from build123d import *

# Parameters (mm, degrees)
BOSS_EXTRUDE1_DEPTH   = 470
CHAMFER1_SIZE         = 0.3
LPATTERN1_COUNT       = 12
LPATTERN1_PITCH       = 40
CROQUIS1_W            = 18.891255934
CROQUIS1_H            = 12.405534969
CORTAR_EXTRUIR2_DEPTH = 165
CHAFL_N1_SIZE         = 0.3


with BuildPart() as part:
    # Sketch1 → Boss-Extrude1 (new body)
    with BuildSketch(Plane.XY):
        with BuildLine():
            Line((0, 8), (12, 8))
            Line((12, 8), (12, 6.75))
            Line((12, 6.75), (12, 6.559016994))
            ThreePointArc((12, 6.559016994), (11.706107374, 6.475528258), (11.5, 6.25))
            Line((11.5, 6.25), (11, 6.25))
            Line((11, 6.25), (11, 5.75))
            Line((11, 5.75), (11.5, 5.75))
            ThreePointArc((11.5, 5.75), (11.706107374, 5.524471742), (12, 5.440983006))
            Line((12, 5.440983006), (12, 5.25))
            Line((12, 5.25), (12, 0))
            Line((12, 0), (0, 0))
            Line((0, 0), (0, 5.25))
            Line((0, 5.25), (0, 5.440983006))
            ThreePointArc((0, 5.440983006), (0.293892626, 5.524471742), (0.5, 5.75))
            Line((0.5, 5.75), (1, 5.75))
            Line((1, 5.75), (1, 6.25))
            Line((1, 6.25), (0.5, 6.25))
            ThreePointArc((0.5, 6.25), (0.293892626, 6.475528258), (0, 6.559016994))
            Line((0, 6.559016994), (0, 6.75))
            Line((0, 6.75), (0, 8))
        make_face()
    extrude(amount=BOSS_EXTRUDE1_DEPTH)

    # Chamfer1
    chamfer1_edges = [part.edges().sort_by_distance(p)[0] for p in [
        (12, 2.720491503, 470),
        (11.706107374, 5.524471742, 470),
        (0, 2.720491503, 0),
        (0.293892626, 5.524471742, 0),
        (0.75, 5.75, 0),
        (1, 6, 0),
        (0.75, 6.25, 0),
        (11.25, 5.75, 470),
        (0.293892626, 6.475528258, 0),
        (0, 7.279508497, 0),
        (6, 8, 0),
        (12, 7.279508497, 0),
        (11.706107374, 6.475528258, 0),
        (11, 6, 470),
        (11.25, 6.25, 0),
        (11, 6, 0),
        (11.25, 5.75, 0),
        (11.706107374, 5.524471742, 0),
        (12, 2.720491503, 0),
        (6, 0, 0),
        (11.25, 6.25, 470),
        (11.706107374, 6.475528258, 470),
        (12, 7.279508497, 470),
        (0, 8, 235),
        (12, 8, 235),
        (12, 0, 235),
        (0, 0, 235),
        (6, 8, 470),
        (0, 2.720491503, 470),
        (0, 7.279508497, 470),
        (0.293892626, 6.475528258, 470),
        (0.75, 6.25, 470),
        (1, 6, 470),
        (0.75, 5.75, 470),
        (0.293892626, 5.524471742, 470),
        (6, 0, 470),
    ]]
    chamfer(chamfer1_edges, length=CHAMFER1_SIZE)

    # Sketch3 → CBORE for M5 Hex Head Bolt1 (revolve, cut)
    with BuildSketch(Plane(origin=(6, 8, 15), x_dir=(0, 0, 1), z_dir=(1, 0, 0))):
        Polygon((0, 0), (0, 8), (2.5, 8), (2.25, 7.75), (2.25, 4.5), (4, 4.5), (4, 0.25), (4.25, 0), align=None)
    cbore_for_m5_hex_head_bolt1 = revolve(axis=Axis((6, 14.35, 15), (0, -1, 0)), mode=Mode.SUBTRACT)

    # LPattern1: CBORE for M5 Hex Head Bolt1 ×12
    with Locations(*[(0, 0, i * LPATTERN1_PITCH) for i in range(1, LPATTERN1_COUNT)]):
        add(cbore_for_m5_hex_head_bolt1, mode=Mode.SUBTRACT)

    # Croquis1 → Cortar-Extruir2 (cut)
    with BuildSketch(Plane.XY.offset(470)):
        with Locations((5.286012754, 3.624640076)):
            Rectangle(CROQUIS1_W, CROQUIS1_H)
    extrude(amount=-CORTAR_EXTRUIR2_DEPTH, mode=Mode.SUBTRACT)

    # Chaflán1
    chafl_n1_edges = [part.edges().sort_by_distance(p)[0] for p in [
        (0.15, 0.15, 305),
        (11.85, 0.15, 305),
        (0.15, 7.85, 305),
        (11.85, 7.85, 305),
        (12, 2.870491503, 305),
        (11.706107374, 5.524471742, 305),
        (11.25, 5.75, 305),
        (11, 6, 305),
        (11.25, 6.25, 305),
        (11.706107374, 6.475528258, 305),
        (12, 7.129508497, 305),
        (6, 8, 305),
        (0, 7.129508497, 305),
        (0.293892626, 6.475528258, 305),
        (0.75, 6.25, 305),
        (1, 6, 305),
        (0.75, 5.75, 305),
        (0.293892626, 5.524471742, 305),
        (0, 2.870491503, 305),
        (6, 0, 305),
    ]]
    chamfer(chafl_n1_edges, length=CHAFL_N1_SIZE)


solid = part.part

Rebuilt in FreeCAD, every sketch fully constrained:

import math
import FreeCAD as App
import Part
import Sketcher
Q = App.Units.Quantity


def edges_at(feature, points):
    """Names of the edges that pass closest to the given points."""
    edges = feature.Shape.Edges
    near = lambda p: min(range(len(edges)), key=lambda i: edges[i].distToShape(Part.Vertex(*p))[0])
    return sorted({f"Edge{near(p) + 1}" for p in points})


def add_polygon(sketch, points):
    """Adds a closed chain of lines whose ends are joined by coincident constraints."""
    first, n = sketch.GeometryCount, len(points)
    for a, b in zip(points, points[1:] + points[:1]):
        sketch.addGeometry(Part.LineSegment(App.Vector(*a, 0), App.Vector(*b, 0)), False)
    for i in range(n):
        sketch.addConstraint(Sketcher.Constraint("Coincident", first + i, 2, first + (i + 1) % n, 1))

doc = App.newDocument("Part")
body = doc.addObject("PartDesign::Body", "Body")

# Sketch on XY plane
sketch1 = body.newObject("Sketcher::SketchObject", "Sketch")
sketch1.AttachmentSupport = (doc.getObject("XY_Plane"), [""])
sketch1.MapMode = "FlatFace"
sketch1.addGeometry(Part.LineSegment(App.Vector(12, 8, 0), App.Vector(0, 8, 0)), False)
sketch1.addGeometry(Part.LineSegment(App.Vector(0, 8, 0), App.Vector(0, 6.559017, 0)), False)
sketch1.addGeometry(Part.ArcOfCircle(Part.Circle(App.Vector(0, 6, 0), App.Vector(0, 0, 1), 0.559017), math.radians(26.565051), math.radians(90)), False)
sketch1.addGeometry(Part.LineSegment(App.Vector(0.5, 6.25, 0), App.Vector(1, 6.25, 0)), False)
sketch1.addGeometry(Part.LineSegment(App.Vector(1, 6.25, 0), App.Vector(1, 5.75, 0)), False)
sketch1.addGeometry(Part.LineSegment(App.Vector(1, 5.75, 0), App.Vector(0.5, 5.75, 0)), False)
sketch1.addGeometry(Part.ArcOfCircle(Part.Circle(App.Vector(0, 6, 0), App.Vector(0, 0, 1), 0.559017), math.radians(-90), math.radians(-26.565051)), False)
sketch1.addGeometry(Part.LineSegment(App.Vector(0, 5.440983, 0), App.Vector(0, 0, 0)), False)
sketch1.addGeometry(Part.LineSegment(App.Vector(0, 0, 0), App.Vector(12, 0, 0)), False)
sketch1.addGeometry(Part.LineSegment(App.Vector(12, 0, 0), App.Vector(12, 5.440983, 0)), False)
sketch1.addGeometry(Part.ArcOfCircle(Part.Circle(App.Vector(12, 6, 0), App.Vector(0, 0, 1), 0.559017), math.radians(-153.434949), math.radians(-90)), False)
sketch1.addGeometry(Part.LineSegment(App.Vector(11.5, 5.75, 0), App.Vector(11, 5.75, 0)), False)
sketch1.addGeometry(Part.LineSegment(App.Vector(11, 5.75, 0), App.Vector(11, 6.25, 0)), False)
sketch1.addGeometry(Part.LineSegment(App.Vector(11, 6.25, 0), App.Vector(11.5, 6.25, 0)), False)
sketch1.addGeometry(Part.ArcOfCircle(Part.Circle(App.Vector(12, 6, 0), App.Vector(0, 0, 1), 0.559017), math.radians(90), math.radians(153.434949)), False)
sketch1.addGeometry(Part.LineSegment(App.Vector(12, 6.559017, 0), App.Vector(12, 8, 0)), False)
sketch1.addConstraint(Sketcher.Constraint("Coincident", 0, 2, 1, 1))
sketch1.addConstraint(Sketcher.Constraint("Coincident", 1, 2, 2, 2))
sketch1.addConstraint(Sketcher.Constraint("Coincident", 2, 1, 3, 1))
sketch1.addConstraint(Sketcher.Constraint("Coincident", 3, 2, 4, 1))
sketch1.addConstraint(Sketcher.Constraint("Coincident", 4, 2, 5, 1))
sketch1.addConstraint(Sketcher.Constraint("Coincident", 5, 2, 6, 2))
sketch1.addConstraint(Sketcher.Constraint("Coincident", 6, 1, 7, 1))
sketch1.addConstraint(Sketcher.Constraint("Coincident", 7, 2, 8, 1))
sketch1.addConstraint(Sketcher.Constraint("Coincident", 8, 2, 9, 1))
sketch1.addConstraint(Sketcher.Constraint("Coincident", 9, 2, 10, 2))
sketch1.addConstraint(Sketcher.Constraint("Coincident", 10, 1, 11, 1))
sketch1.addConstraint(Sketcher.Constraint("Coincident", 11, 2, 12, 1))
sketch1.addConstraint(Sketcher.Constraint("Coincident", 12, 2, 13, 1))
sketch1.addConstraint(Sketcher.Constraint("Coincident", 13, 2, 14, 2))
sketch1.addConstraint(Sketcher.Constraint("Coincident", 14, 1, 15, 1))
sketch1.addConstraint(Sketcher.Constraint("Coincident", 15, 2, 0, 1))
sketch1.addConstraint(Sketcher.Constraint("Horizontal", 0))
sketch1.addConstraint(Sketcher.Constraint("Vertical", 1))
sketch1.addConstraint(Sketcher.Constraint("Horizontal", 3))
sketch1.addConstraint(Sketcher.Constraint("Vertical", 4))
sketch1.addConstraint(Sketcher.Constraint("Horizontal", 5))
sketch1.addConstraint(Sketcher.Constraint("Vertical", 7))
sketch1.addConstraint(Sketcher.Constraint("Horizontal", 8))
sketch1.addConstraint(Sketcher.Constraint("Vertical", 9))
sketch1.addConstraint(Sketcher.Constraint("Horizontal", 11))
sketch1.addConstraint(Sketcher.Constraint("Vertical", 12))
sketch1.addConstraint(Sketcher.Constraint("Horizontal", 13))
sketch1.addConstraint(Sketcher.Constraint("Vertical", 15))
sketch1.addConstraint(Sketcher.Constraint("Coincident", 7, 2, -1, 1))
sketch1.addConstraint(Sketcher.Constraint("Coincident", 6, 3, 2, 3))
sketch1.addConstraint(Sketcher.Constraint("Coincident", 14, 3, 10, 3))
sketch1.addConstraint(Sketcher.Constraint("Equal", 2, 6))
sketch1.addConstraint(Sketcher.Constraint("Equal", 6, 10))
sketch1.addConstraint(Sketcher.Constraint("Equal", 10, 14))
sketch1.addConstraint(Sketcher.Constraint("PointOnObject", 2, 3, -2))
sketch1.addConstraint(Sketcher.Constraint("PointOnObject", 0, 2, -2))
sketch1.addConstraint(Sketcher.Constraint("Horizontal", 6, 3, 10, 3))
sketch1.addConstraint(Sketcher.Constraint("Horizontal", 5, 2, 10, 1))
sketch1.addConstraint(Sketcher.Constraint("Horizontal", 3, 2, 12, 2))
sketch1.addConstraint(Sketcher.Constraint("Vertical", 2, 1, 5, 2))
sketch1.addConstraint(Sketcher.Constraint("Vertical", 14, 3, 8, 2))
sketch1.addConstraint(Sketcher.Constraint("Vertical", 9, 2, 14, 1))
sketch1.addConstraint(Sketcher.Constraint("Equal", 5, 11))
sketch1.addConstraint(Sketcher.Constraint("Equal", 13, 4))
sketch1.addConstraint(Sketcher.Constraint("DistanceX", 0, 2, 0, 1, Q("12 mm")))
sketch1.addConstraint(Sketcher.Constraint("DistanceX", 3, 1, 3, 2, Q("0.5 mm")))
sketch1.addConstraint(Sketcher.Constraint("DistanceY", -1, 1, 2, 3, Q("6 mm")))
sketch1.addConstraint(Sketcher.Constraint("DistanceY", -1, 1, 0, 2, Q("8 mm")))
sketch1.addConstraint(Sketcher.Constraint("DistanceX", -1, 1, 3, 2, Q("1 mm")))
pad1 = body.newObject("PartDesign::Pad", "Pad")
pad1.Profile = sketch1
pad1.Length = 470
doc.recompute()

chamfer = body.newObject("PartDesign::Chamfer", "Chamfer")
chamfer.Base = (pad1, edges_at(pad1, [
    (12, 2.72, 470),
    (11.706, 5.524, 470),
    (0, 2.72, 0),
    (0.294, 5.524, 0),
    (0.75, 5.75, 0),
    (1, 6, 0),
    (0.75, 6.25, 0),
    (11.25, 5.75, 470),
    (0.294, 6.476, 0),
    (0, 7.28, 0),
    (6, 8, 0),
    (12, 7.28, 0),
    (11.706, 6.476, 0),
    (11, 6, 470),
    (11.25, 6.25, 0),
    (11, 6, 0),
    (11.25, 5.75, 0),
    (11.706, 5.524, 0),
    (12, 2.72, 0),
    (6, 0, 0),
    (11.25, 6.25, 470),
    (11.706, 6.476, 470),
    (12, 7.28, 470),
    (0, 8, 235),
    (12, 8, 235),
    (12, 0, 235),
    (0, 0, 235),
    (6, 8, 470),
    (0, 2.72, 470),
    (0, 7.28, 470),
    (0.294, 6.476, 470),
    (0.75, 6.25, 470),
    (1, 6, 470),
    (0.75, 5.75, 470),
    (0.294, 5.524, 470),
    (6, 0, 470),
]))
chamfer.Size = 0.3

# Sketch on YZ plane
sketch2 = body.newObject("Sketcher::SketchObject", "Sketch001")
sketch2.AttachmentSupport = (doc.getObject("YZ_Plane"), [""])
sketch2.MapMode = "FlatFace"
sketch2.AttachmentOffset = App.Placement(App.Vector(0, 0, 6), App.Rotation())
add_polygon(sketch2, [(0, 15), (8, 15), (8, 19.25), (7.75, 19), (3.5, 19), (3.5, 17.25), (0.25, 17.25), (0, 17.5)])  # lines 0-7
sketch2.addGeometry(Part.LineSegment(App.Vector(8, 15, 0), App.Vector(0, 15, 0)), True)  # axis
sketch2.addConstraint(Sketcher.Constraint("Horizontal", 0))
sketch2.addConstraint(Sketcher.Constraint("Vertical", 1))
sketch2.addConstraint(Sketcher.Constraint("Horizontal", 3))
sketch2.addConstraint(Sketcher.Constraint("Vertical", 4))
sketch2.addConstraint(Sketcher.Constraint("Horizontal", 5))
sketch2.addConstraint(Sketcher.Constraint("Vertical", 7))
sketch2.addConstraint(Sketcher.Constraint("Horizontal", 8))
sketch2.addConstraint(Sketcher.Constraint("Coincident", 8, 1, 0, 2))
sketch2.addConstraint(Sketcher.Constraint("PointOnObject", 6, 2, -2))
sketch2.addConstraint(Sketcher.Constraint("PointOnObject", 8, 2, -2))
sketch2.addConstraint(Sketcher.Constraint("Perpendicular", 2, 6))
sketch2.addConstraint(Sketcher.Constraint("Equal", 3, 1))
sketch2.addConstraint(Sketcher.Constraint("Equal", 2, 6))
sketch2.addConstraint(Sketcher.Constraint("DistanceX", 0, 1, 0, 2, Q("8 mm")))
sketch2.addConstraint(Sketcher.Constraint("Angle", 2, Q("-135 deg")))
sketch2.addConstraint(Sketcher.Constraint("DistanceY", 7, 2, 7, 1, Q("2.5 mm")))
sketch2.addConstraint(Sketcher.Constraint("DistanceY", -1, 1, 0, 2, Q("15 mm")))
sketch2.addConstraint(Sketcher.Constraint("DistanceY", -1, 1, 2, 2, Q("19 mm")))
sketch2.addConstraint(Sketcher.Constraint("DistanceY", 4, 2, 1, 2, Q("2 mm")))
groove = body.newObject("PartDesign::Groove", "Groove")
groove.Profile = sketch2
groove.ReferenceAxis = (sketch2, ["Axis0"])
groove.Angle = 360
doc.recompute()

linearpattern = body.newObject("PartDesign::LinearPattern", "LinearPattern")
linearpattern.Originals = [groove]
linearpattern.Direction = (doc.getObject("Z_Axis"), [""])
linearpattern.Mode = "offset"
linearpattern.Offset = 40
linearpattern.Occurrences = 12
body.Tip = linearpattern

# Sketch on XY plane
sketch3 = body.newObject("Sketcher::SketchObject", "Sketch002")
sketch3.AttachmentSupport = (doc.getObject("XY_Plane"), [""])
sketch3.MapMode = "FlatFace"
sketch3.AttachmentOffset = App.Placement(App.Vector(0, 0, 470), App.Rotation())
add_polygon(sketch3, [(-4.159615, 9.827408), (-4.159615, -2.578127), (14.731641, -2.578127), (14.731641, 9.827408)])  # lines 0-3
sketch3.addConstraint(Sketcher.Constraint("Vertical", 0))
sketch3.addConstraint(Sketcher.Constraint("Horizontal", 1))
sketch3.addConstraint(Sketcher.Constraint("Vertical", 2))
sketch3.addConstraint(Sketcher.Constraint("Horizontal", 3))
sketch3.addConstraint(Sketcher.Constraint("DistanceX", 1, 1, 1, 2, Q("18.891256 mm")))
sketch3.addConstraint(Sketcher.Constraint("DistanceY", 0, 2, 0, 1, Q("12.405535 mm")))
sketch3.addConstraint(Sketcher.Constraint("DistanceX", -1, 1, 1, 2, Q("14.731641 mm")))
sketch3.addConstraint(Sketcher.Constraint("DistanceY", 0, 2, -1, 1, Q("2.578127 mm")))
pocket1 = body.newObject("PartDesign::Pocket", "Pocket")
pocket1.Profile = sketch3
pocket1.Length = 165
doc.recompute()

chamfer2 = body.newObject("PartDesign::Chamfer", "Chamfer001")
chamfer2.Base = (pocket1, edges_at(pocket1, [
    (0.15, 0.15, 305),
    (11.85, 0.15, 305),
    (0.15, 7.85, 305),
    (11.85, 7.85, 305),
    (12, 2.87, 305),
    (11.706, 5.524, 305),
    (11.25, 5.75, 305),
    (11, 6, 305),
    (11.25, 6.25, 305),
    (11.706, 6.476, 305),
    (12, 7.13, 305),
    (6, 8, 305),
    (0, 7.13, 305),
    (0.294, 6.476, 305),
    (0.75, 6.25, 305),
    (1, 6, 305),
    (0.75, 5.75, 305),
    (0.294, 5.524, 305),
    (0, 2.87, 305),
    (6, 0, 305),
]))
chamfer2.Size = 0.3

doc.recompute()
